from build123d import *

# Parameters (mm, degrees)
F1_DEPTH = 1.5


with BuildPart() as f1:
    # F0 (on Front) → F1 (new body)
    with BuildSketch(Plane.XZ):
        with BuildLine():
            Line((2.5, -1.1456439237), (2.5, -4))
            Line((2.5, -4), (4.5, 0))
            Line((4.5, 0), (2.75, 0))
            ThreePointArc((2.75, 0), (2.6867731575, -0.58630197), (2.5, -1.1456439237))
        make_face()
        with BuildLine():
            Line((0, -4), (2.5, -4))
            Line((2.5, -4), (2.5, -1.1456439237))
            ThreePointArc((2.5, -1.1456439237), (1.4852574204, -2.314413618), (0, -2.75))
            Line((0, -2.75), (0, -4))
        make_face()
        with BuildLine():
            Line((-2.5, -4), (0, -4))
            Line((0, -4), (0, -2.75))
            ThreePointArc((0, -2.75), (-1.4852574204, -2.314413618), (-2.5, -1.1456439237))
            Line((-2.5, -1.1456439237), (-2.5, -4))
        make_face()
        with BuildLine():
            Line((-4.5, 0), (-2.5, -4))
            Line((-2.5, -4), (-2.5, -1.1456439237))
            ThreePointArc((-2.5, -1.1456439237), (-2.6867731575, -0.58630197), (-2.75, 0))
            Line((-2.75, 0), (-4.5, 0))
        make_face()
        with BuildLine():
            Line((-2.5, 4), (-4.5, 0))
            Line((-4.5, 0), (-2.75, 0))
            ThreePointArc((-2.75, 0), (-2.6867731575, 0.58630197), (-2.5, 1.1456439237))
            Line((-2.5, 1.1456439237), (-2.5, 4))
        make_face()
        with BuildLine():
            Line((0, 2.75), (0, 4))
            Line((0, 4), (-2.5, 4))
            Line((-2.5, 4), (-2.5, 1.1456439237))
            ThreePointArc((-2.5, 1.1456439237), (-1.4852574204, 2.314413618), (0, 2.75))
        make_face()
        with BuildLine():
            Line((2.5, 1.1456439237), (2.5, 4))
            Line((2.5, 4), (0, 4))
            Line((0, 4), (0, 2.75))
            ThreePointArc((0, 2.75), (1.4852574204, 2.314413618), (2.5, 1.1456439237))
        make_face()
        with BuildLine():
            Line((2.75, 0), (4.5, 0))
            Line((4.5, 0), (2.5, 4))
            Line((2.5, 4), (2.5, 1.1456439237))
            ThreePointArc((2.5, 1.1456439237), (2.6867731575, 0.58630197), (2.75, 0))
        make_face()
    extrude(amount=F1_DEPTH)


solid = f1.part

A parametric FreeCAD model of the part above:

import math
import FreeCAD as App
import Part
import Sketcher
from FreeCAD import Vector

doc = App.newDocument("Part")
body = doc.addObject("PartDesign::Body", "Body")

sketch1 = body.newObject("Sketcher::SketchObject", "Sketch")
sketch1.AttachmentSupport = (doc.getObject("XZ_Plane"), [""])
sketch1.MapMode = "FlatFace"
sketch1.addGeometry([
    Part.LineSegment(Vector(2.5, -4, 0), Vector(4.5, 0, 0)),
    Part.LineSegment(Vector(4.5, 0, 0), Vector(2.5, 4, 0)),
    Part.LineSegment(Vector(2.5, 4, 0), Vector(-2.5, 4, 0)),
    Part.LineSegment(Vector(-2.5, 4, 0), Vector(-4.5, 0, 0)),
    Part.LineSegment(Vector(-4.5, 0, 0), Vector(-2.5, -4, 0)),
    Part.LineSegment(Vector(-2.5, -4, 0), Vector(2.5, -4, 0)),
    Part.ArcOfCircle(Part.Circle(Vector(0, 0, 0), Vector(0, 0, 1), 2.8), math.radians(-25), math.radians(0)),
    Part.ArcOfCircle(Part.Circle(Vector(0, 0, 0), Vector(0, 0, 1), 2.8), math.radians(-90), math.radians(-25)),
    Part.ArcOfCircle(Part.Circle(Vector(0, 0, 0), Vector(0, 0, 1), 2.8), math.radians(-155), math.radians(-90)),
    Part.ArcOfCircle(Part.Circle(Vector(0, 0, 0), Vector(0, 0, 1), 2.8), math.radians(180), math.radians(205)),
    Part.ArcOfCircle(Part.Circle(Vector(0, 0, 0), Vector(0, 0, 1), 2.8), math.radians(155), math.radians(180)),
    Part.ArcOfCircle(Part.Circle(Vector(0, 0, 0), Vector(0, 0, 1), 2.8), math.radians(90), math.radians(155)),
    Part.ArcOfCircle(Part.Circle(Vector(0, 0, 0), Vector(0, 0, 1), 2.8), math.radians(25), math.radians(90)),
    Part.ArcOfCircle(Part.Circle(Vector(0, 0, 0), Vector(0, 0, 1), 2.8), math.radians(0), math.radians(25)),
], False)
sketch1.addConstraint([
    Sketcher.Constraint("Coincident", 0, 2, 1, 1),
    Sketcher.Constraint("Coincident", 1, 2, 2, 1),
    Sketcher.Constraint("Coincident", 2, 2, 3, 1),
    Sketcher.Constraint("Coincident", 3, 2, 4, 1),
    Sketcher.Constraint("Coincident", 4, 2, 5, 1),
    Sketcher.Constraint("Coincident", 5, 2, 0, 1),
    Sketcher.Constraint("Tangent", 6, 1, 7, 2),
    Sketcher.Constraint("Tangent", 7, 1, 8, 2),
    Sketcher.Constraint("Tangent", 8, 1, 9, 2),
    Sketcher.Constraint("Tangent", 9, 1, 10, 2),
    Sketcher.Constraint("Tangent", 10, 1, 11, 2),
    Sketcher.Constraint("Tangent", 11, 1, 12, 2),
    Sketcher.Constraint("Tangent", 12, 1, 13, 2),
    Sketcher.Constraint("Tangent", 13, 1, 6, 2),
    Sketcher.Constraint("Horizontal", 2),
    Sketcher.Constraint("Horizontal", 5),
    Sketcher.Constraint("Coincident", 6, 3, -1, 1),
    Sketcher.Constraint("Coincident", 8, 3, -1, 1),
    Sketcher.Constraint("Coincident", 10, 3, -1, 1),
    Sketcher.Constraint("Equal", 10, 11),
    Sketcher.Constraint("Symmetric", 0, 2, 3, 2, -1, 1),
    Sketcher.Constraint("Symmetric", 1, 2, 4, 2, -1, 1),
    Sketcher.Constraint("PointOnObject", 0, 2, -1),
    Sketcher.Constraint("PointOnObject", 7, 1, -2),
    Sketcher.Constraint("PointOnObject", 9, 1, -1),
    Sketcher.Constraint("PointOnObject", 11, 1, -2),
    Sketcher.Constraint("PointOnObject", 13, 1, -1),
    Sketcher.Constraint("Parallel", 0, 3),
    Sketcher.Constraint("Horizontal", 6, 1, 8, 1),
    Sketcher.Constraint("Horizontal", 10, 1, 12, 1),
    Sketcher.Constraint("Vertical", 2, 2, 4, 2),
    Sketcher.Constraint("Vertical", 5, 2, 6, 1),
    Sketcher.Constraint("Vertical", 8, 1, 10, 1),
    Sketcher.Constraint("DistanceX", 2, 2, 2, 1, 5.0),
    Sketcher.Constraint("Radius", 6, 2.75),
    Sketcher.Constraint("DistanceY", -1, 1, 1, 2, 4.0),
    Sketcher.Constraint("DistanceX", 1, 2, 0, 2, 2.0),
])
pad1 = body.newObject("PartDesign::Pad", "Pad")
pad1.Profile = sketch1
pad1.Length = 1.5

doc.recompute()
